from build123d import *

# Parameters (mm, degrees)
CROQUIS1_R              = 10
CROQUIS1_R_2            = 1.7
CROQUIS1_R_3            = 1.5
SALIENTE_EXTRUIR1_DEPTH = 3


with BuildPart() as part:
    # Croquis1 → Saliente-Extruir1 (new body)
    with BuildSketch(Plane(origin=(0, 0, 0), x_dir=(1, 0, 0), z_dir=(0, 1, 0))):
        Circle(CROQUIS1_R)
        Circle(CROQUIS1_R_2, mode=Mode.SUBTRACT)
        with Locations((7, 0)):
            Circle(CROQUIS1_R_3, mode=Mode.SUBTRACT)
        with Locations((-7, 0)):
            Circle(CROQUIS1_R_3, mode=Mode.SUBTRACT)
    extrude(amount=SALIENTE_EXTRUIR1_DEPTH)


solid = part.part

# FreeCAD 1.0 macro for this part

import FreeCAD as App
import Part
import Sketcher

doc = App.newDocument("Part")
body = doc.addObject("PartDesign::Body", "Body")

sketch1 = doc.addObject("Sketcher::SketchObject", "Sketch")
body.addObject(sketch1)
sketch1.AttachmentSupport = (doc.XZ_Plane, [""])
sketch1.MapMode = "FlatFace"
sketch1.addGeometry([
    Part.Circle(App.Vector(0, 0, 0), App.Vector(0, 0, 1), 10),
    Part.Circle(App.Vector(-7, 0, 0), App.Vector(0, 0, 1), 1.5),
    Part.Circle(App.Vector(0, 0, 0), App.Vector(0, 0, 1), 1.7),
    Part.Circle(App.Vector(7, 0, 0), App.Vector(0, 0, 1), 1.5),
], False)
sketch1.addConstraint([
    Sketcher.Constraint("Coincident", 0, 3, -1, 1),
    Sketcher.Constraint("Coincident", 2, 3, -1, 1),
    Sketcher.Constraint("Equal", 1, 3),
    Sketcher.Constraint("Symmetric", 1, 3, 3, 3, -1, 1),
    Sketcher.Constraint("PointOnObject", 1, 3, -1),
    Sketcher.Constraint("Diameter", 0, 20.0),
    Sketcher.Constraint("Diameter", 1, 3.0),
    Sketcher.Constraint("Diameter", 2, 3.4),
    Sketcher.Constraint("DistanceX", 1, 3, -1, 1, 7.0),
])
pad1 = doc.addObject("PartDesign::Pad", "Pad")
body.addObject(pad1)
pad1.Profile = sketch1
pad1.Length = 3
pad1.Reversed = True

doc.recompute()
